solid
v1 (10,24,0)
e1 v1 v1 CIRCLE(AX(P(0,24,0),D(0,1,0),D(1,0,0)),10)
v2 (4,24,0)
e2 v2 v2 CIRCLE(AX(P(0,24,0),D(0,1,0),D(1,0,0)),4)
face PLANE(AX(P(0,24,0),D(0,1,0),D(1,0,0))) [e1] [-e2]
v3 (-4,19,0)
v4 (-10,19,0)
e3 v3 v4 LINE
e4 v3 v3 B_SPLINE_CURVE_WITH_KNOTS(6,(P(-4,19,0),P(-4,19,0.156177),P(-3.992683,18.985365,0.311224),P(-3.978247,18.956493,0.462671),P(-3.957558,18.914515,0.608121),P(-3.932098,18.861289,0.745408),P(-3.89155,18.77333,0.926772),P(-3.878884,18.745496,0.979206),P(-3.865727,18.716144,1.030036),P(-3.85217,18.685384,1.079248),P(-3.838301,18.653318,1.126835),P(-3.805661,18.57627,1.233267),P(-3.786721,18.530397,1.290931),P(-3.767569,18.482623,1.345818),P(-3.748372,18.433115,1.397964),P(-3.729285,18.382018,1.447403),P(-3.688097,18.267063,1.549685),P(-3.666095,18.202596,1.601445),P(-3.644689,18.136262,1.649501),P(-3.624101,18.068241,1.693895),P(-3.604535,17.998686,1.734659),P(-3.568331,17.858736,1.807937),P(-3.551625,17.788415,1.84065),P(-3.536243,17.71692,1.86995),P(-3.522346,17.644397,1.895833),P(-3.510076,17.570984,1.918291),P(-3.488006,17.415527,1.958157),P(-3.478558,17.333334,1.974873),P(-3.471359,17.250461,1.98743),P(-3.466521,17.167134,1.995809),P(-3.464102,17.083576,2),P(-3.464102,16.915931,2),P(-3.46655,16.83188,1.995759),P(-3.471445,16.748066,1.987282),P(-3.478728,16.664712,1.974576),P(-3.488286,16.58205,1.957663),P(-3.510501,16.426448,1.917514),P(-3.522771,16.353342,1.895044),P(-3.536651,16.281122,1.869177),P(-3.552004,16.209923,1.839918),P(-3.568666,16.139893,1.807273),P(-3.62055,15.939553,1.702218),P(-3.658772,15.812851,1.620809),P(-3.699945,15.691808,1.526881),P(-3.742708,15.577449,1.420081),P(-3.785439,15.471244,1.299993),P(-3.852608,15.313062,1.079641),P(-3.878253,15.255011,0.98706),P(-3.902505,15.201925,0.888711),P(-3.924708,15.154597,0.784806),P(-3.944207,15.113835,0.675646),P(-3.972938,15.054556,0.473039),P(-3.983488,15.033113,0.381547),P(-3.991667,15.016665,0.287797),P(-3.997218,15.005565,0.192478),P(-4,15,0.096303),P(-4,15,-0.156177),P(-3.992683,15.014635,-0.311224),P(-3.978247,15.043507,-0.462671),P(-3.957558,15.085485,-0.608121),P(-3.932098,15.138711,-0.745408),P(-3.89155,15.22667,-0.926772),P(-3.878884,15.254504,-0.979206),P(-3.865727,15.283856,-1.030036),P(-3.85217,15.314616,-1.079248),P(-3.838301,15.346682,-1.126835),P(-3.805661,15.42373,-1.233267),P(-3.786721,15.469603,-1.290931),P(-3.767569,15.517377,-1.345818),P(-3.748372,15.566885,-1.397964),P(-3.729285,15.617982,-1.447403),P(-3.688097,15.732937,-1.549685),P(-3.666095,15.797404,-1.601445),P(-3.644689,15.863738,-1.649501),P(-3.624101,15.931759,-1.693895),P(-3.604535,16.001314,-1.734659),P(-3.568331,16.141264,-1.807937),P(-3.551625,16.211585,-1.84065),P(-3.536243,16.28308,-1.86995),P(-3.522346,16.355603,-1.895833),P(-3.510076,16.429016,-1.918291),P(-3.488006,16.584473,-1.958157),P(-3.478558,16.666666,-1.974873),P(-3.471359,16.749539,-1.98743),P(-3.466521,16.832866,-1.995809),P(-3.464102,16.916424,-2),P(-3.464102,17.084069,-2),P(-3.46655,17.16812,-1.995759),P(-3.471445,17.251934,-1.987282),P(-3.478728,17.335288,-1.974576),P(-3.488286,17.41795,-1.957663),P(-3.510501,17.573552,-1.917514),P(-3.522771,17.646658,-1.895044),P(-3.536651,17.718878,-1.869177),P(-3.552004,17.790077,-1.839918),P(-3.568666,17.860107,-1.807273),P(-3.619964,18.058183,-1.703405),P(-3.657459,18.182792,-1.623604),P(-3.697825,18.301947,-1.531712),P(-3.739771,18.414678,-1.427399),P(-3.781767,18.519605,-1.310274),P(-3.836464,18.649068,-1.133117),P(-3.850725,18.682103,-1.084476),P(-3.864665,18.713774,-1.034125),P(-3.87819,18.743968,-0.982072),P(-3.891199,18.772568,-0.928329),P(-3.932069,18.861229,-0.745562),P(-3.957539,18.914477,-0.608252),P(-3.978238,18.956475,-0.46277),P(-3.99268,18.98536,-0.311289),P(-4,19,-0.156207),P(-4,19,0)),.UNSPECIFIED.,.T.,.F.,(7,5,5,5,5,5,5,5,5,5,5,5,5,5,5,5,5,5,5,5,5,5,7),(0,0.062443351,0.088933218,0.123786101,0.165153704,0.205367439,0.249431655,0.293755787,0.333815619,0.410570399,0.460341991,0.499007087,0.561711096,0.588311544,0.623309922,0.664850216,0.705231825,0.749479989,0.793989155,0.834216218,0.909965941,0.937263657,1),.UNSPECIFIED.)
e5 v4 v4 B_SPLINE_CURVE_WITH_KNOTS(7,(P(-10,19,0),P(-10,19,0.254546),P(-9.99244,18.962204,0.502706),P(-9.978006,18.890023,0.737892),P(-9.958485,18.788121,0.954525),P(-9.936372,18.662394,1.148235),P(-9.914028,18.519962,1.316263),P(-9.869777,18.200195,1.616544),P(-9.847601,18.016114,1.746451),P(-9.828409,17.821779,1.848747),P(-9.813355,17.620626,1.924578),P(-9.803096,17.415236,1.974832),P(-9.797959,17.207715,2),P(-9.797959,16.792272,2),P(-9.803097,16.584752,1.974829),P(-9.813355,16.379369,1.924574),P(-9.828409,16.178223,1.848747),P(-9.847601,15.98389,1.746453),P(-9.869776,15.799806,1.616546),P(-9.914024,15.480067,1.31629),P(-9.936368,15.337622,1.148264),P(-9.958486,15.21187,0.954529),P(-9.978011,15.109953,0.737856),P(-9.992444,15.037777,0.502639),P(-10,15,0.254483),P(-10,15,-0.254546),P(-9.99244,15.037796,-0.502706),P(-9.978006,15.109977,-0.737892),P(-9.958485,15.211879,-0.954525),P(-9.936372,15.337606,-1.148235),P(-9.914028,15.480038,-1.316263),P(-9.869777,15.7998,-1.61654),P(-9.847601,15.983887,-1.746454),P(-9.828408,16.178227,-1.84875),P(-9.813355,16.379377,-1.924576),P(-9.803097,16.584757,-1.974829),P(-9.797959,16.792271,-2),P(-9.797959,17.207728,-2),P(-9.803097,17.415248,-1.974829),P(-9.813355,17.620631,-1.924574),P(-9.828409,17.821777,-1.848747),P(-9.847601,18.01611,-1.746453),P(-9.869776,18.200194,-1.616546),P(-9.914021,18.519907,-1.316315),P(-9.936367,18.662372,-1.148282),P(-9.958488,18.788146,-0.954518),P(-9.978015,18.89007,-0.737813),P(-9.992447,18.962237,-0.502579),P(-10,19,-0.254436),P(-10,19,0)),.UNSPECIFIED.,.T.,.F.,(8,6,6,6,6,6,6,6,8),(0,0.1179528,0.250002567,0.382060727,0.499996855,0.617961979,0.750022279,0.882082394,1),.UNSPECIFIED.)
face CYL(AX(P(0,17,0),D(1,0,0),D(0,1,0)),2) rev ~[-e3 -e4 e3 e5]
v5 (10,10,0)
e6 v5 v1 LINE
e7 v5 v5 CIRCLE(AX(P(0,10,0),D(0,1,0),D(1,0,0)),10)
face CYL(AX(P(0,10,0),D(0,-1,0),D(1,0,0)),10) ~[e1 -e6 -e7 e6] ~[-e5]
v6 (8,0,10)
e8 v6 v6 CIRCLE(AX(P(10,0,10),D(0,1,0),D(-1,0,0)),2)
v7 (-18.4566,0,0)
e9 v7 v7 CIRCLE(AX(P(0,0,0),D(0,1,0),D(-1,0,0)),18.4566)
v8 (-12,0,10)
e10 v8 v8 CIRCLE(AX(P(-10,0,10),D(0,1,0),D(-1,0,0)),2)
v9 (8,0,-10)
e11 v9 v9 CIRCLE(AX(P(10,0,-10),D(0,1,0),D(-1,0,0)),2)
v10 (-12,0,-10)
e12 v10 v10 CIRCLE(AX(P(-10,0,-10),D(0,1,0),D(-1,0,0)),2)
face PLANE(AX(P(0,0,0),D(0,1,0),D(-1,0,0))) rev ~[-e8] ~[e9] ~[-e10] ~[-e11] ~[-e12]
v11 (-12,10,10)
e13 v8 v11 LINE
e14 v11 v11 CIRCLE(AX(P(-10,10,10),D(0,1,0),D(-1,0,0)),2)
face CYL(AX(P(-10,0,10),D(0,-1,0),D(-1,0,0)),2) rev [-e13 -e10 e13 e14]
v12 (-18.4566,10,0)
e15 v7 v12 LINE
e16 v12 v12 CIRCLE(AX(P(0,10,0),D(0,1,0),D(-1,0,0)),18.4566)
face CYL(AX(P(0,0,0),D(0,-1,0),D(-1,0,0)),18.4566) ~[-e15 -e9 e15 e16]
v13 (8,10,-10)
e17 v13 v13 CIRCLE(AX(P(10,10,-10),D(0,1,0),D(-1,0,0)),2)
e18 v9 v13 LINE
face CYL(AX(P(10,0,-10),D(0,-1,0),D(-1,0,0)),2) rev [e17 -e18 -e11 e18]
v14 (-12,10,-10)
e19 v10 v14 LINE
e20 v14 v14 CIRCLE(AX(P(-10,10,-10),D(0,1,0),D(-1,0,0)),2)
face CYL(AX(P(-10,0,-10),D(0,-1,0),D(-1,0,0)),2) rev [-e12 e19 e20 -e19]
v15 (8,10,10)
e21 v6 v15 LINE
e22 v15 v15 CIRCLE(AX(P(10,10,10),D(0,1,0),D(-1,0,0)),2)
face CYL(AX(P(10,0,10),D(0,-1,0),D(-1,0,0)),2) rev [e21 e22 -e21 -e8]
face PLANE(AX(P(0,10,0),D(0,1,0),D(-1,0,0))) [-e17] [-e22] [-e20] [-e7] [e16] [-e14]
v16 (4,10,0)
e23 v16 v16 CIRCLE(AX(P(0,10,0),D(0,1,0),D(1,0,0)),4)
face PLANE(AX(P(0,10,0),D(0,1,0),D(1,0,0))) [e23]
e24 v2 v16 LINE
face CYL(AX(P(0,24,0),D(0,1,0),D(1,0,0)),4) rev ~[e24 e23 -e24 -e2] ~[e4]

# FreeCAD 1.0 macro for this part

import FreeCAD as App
import Part
import Sketcher

doc = App.newDocument("Part")
params = doc.addObject("Spreadsheet::Sheet", "Params")
for row, (alias, value) in enumerate([
    ("sketch1_diameter", "4 mm"),
    ("pad1_length", "10 mm"),
    ("sketch2_diameter", "20 mm"),
    ("pad2_length", "14 mm"),
    ("sketch3_diameter", "8 mm"),
    ("pocket1_length", "14 mm"),
    ("sketch4_diameter", "4 mm"),
    ("pocket2_length", "14 mm"),
], start=1):
    params.set(f"A{row}", alias)
    params.set(f"B{row}", "=" + value)
    params.setAlias(f"B{row}", alias)

body = doc.addObject("PartDesign::Body", "Body")

sketch1 = body.newObject("Sketcher::SketchObject", "Sketch")
sketch1.AttachmentSupport = (doc.getObject("XZ_Plane"), [""])
sketch1.MapMode = "FlatFace"
sketch1.addGeometry([
    Part.Circle(App.Vector(0, 0, 0), App.Vector(0, 0, 1), 18.5),
    Part.Circle(App.Vector(10, -10, 0), App.Vector(0, 0, 1), 2),
    Part.Circle(App.Vector(-10, -10, 0), App.Vector(0, 0, 1), 2),
    Part.Circle(App.Vector(10, 10, 0), App.Vector(0, 0, 1), 2),
    Part.Circle(App.Vector(-10, 10, 0), App.Vector(0, 0, 1), 2),
], False)
sketch1.addConstraint([
    Sketcher.Constraint("Coincident", 0, 3, -1, 1),
    Sketcher.Constraint("Equal", 1, 2),
    Sketcher.Constraint("Equal", 2, 3),
    Sketcher.Constraint("Equal", 3, 4),
    Sketcher.Constraint("Symmetric", 2, 3, 3, 3, -1, 1),
    Sketcher.Constraint("Symmetric", 1, 3, 4, 3, -1, 1),
    Sketcher.Constraint("Symmetric", 1, 3, 2, 3, -2),
    Sketcher.Constraint("Diameter", 1, 4.0),
    Sketcher.Constraint("DistanceX", -1, 1, 1, 3, 10.0),
    Sketcher.Constraint("DistanceY", 1, 3, -1, 1, 10.0),
    Sketcher.Constraint("Diameter", 0, 36.9132),
])
sketch1.setExpression("Constraints[7]", "Params.sketch1_diameter")
pad1 = body.newObject("PartDesign::Pad", "Pad")
pad1.Profile = sketch1
pad1.setExpression("Length", "Params.pad1_length")
pad1.Reversed = True

sketch2 = body.newObject("Sketcher::SketchObject", "Sketch001")
sketch2.AttachmentSupport = (doc.getObject("XZ_Plane"), [""])
sketch2.MapMode = "FlatFace"
sketch2.AttachmentOffset = App.Placement(App.Vector(0, 0, -10), App.Rotation())
sketch2.addGeometry(Part.Circle(App.Vector(0, 0, 0), App.Vector(0, 0, 1), 10), False)
sketch2.addConstraint([
    Sketcher.Constraint("Coincident", 0, 3, -1, 1),
    Sketcher.Constraint("Diameter", 0, 20.0),
])
sketch2.setExpression("Constraints[1]", "Params.sketch2_diameter")
pad2 = body.newObject("PartDesign::Pad", "Pad001")
pad2.Profile = sketch2
pad2.setExpression("Length", "Params.pad2_length")
pad2.Reversed = True

sketch3 = body.newObject("Sketcher::SketchObject", "Sketch002")
sketch3.AttachmentSupport = (doc.getObject("XZ_Plane"), [""])
sketch3.MapMode = "FlatFace"
sketch3.AttachmentOffset = App.Placement(App.Vector(0, 0, -24), App.Rotation())
sketch3.addGeometry(Part.Circle(App.Vector(0, 0, 0), App.Vector(0, 0, 1), 4), False)
sketch3.addConstraint([
    Sketcher.Constraint("Coincident", 0, 3, -1, 1),
    Sketcher.Constraint("Diameter", 0, 8.0),
])
sketch3.setExpression("Constraints[1]", "Params.sketch3_diameter")
pocket1 = body.newObject("PartDesign::Pocket", "Pocket")
pocket1.Profile = sketch3
pocket1.setExpression("Length", "Params.pocket1_length")
pocket1.Reversed = True

sketch4 = body.newObject("Sketcher::SketchObject", "Sketch003")
sketch4.AttachmentSupport = (doc.getObject("YZ_Plane"), [""])
sketch4.MapMode = "FlatFace"
sketch4.addGeometry(Part.Circle(App.Vector(17, 0, 0), App.Vector(0, 0, 1), 2), False)
sketch4.addConstraint([
    Sketcher.Constraint("PointOnObject", 0, 3, -1),
    Sketcher.Constraint("Diameter", 0, 4.0),
    Sketcher.Constraint("DistanceX", -1, 1, 0, 3, 17.0),
])
sketch4.setExpression("Constraints[1]", "Params.sketch4_diameter")
pocket2 = body.newObject("PartDesign::Pocket", "Pocket001")
pocket2.Profile = sketch4
pocket2.setExpression("Length", "Params.pocket2_length")

doc.recompute()
